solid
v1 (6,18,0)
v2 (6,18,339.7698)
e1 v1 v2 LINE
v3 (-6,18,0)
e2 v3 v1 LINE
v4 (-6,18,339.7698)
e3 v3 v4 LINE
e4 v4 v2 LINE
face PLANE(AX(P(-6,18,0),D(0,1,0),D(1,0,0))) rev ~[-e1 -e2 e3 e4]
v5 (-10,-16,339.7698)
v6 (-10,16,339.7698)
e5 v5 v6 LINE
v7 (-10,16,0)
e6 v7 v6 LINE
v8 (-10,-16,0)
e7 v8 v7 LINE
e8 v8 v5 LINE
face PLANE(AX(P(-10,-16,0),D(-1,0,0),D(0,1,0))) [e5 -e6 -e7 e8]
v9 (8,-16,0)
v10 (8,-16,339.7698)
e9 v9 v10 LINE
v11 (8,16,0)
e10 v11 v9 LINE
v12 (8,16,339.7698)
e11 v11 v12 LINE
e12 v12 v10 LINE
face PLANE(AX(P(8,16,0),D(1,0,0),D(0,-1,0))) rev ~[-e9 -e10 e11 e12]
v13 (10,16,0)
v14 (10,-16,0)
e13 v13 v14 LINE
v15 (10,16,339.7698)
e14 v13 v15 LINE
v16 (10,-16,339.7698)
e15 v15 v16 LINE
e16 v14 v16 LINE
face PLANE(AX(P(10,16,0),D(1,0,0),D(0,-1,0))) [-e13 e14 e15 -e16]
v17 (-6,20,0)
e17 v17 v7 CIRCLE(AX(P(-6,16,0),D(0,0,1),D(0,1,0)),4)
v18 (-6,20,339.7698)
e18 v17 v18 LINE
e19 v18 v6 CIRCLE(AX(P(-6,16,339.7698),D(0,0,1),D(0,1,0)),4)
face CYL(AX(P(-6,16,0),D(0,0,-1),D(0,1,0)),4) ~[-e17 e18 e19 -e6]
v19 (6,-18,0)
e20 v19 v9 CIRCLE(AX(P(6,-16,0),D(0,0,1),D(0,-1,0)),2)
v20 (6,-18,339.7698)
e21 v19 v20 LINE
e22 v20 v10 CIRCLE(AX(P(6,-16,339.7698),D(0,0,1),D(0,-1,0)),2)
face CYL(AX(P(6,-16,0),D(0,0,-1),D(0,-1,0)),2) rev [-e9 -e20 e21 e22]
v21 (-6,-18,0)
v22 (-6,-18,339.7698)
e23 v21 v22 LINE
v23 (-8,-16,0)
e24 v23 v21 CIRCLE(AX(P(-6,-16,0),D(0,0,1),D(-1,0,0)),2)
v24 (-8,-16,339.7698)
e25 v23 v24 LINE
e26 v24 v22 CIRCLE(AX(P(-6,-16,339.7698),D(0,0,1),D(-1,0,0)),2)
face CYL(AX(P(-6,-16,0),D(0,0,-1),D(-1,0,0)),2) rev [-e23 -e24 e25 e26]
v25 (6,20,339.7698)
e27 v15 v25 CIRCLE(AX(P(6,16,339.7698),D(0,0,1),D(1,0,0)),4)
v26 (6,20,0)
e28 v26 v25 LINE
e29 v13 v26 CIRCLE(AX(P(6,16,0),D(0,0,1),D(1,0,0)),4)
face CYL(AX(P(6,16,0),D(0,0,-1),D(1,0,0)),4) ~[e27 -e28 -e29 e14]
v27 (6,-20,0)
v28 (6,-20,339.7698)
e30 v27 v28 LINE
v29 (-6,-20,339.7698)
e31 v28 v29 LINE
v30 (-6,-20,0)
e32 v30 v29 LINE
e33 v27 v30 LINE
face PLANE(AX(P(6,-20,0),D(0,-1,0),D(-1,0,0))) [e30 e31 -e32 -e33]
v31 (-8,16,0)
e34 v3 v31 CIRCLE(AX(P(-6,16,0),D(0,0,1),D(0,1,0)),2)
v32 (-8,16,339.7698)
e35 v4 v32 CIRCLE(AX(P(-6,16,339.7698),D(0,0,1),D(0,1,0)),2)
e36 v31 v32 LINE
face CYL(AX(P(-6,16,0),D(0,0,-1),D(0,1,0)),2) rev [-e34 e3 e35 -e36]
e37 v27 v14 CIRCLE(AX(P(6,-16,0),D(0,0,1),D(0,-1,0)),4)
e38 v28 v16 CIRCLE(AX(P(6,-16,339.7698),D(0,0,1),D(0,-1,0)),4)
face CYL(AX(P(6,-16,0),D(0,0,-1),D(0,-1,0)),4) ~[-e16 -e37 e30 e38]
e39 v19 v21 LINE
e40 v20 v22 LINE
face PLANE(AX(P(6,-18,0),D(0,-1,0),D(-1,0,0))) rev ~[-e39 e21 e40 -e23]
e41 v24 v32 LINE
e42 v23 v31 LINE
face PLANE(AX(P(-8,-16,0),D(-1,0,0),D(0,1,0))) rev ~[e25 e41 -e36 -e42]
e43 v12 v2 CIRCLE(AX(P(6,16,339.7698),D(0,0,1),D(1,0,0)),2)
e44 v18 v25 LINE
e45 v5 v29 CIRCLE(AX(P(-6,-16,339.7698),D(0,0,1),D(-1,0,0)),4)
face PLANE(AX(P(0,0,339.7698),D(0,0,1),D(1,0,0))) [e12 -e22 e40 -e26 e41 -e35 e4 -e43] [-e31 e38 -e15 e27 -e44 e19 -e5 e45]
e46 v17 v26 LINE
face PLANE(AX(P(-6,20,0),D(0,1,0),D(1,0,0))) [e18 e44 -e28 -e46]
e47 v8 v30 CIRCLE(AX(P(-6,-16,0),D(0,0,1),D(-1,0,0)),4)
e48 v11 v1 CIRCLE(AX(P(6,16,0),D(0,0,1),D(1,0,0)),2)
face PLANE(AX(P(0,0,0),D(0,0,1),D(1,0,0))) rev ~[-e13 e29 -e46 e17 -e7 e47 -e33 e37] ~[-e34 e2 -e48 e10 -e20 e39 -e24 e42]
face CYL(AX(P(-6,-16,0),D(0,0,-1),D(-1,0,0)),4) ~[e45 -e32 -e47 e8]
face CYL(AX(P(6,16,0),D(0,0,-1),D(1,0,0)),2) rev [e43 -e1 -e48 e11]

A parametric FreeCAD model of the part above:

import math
import FreeCAD as App
import Part
import Sketcher

V = App.Vector

doc = App.newDocument("Part")
body = doc.addObject("PartDesign::Body", "Body")

# Sketch on XY plane
sketch1 = doc.addObject("Sketcher::SketchObject", "Sketch")
body.addObject(sketch1)
sketch1.AttachmentSupport = (doc.XY_Plane, [""])
sketch1.MapMode = "FlatFace"
sketch1.addGeometry(Part.LineSegment(V(-10, 16, 0), V(-10, -16, 0)), False)
sketch1.addGeometry(Part.ArcOfCircle(Part.Circle(V(-6, -16, 0), V(0, 0, 1), 4), math.radians(180), math.radians(270)), False)
sketch1.addGeometry(Part.LineSegment(V(-6, -20, 0), V(6, -20, 0)), False)
sketch1.addGeometry(Part.ArcOfCircle(Part.Circle(V(6, -16, 0), V(0, 0, 1), 4), math.radians(-90), math.radians(0)), False)
sketch1.addGeometry(Part.LineSegment(V(10, -16, 0), V(10, 16, 0)), False)
sketch1.addGeometry(Part.ArcOfCircle(Part.Circle(V(6, 16, 0), V(0, 0, 1), 4), math.radians(0), math.radians(90)), False)
sketch1.addGeometry(Part.LineSegment(V(6, 20, 0), V(-6, 20, 0)), False)
sketch1.addGeometry(Part.ArcOfCircle(Part.Circle(V(-6, 16, 0), V(0, 0, 1), 4), math.radians(90), math.radians(180)), False)
sketch1.addGeometry(Part.ArcOfCircle(Part.Circle(V(-6, 16, 0), V(0, 0, 1), 2), math.radians(90), math.radians(180)), False)
sketch1.addGeometry(Part.LineSegment(V(-6, 18, 0), V(6, 18, 0)), False)
sketch1.addGeometry(Part.ArcOfCircle(Part.Circle(V(6, 16, 0), V(0, 0, 1), 2), math.radians(0), math.radians(90)), False)
sketch1.addGeometry(Part.LineSegment(V(8, 16, 0), V(8, -16, 0)), False)
sketch1.addGeometry(Part.ArcOfCircle(Part.Circle(V(6, -16, 0), V(0, 0, 1), 2), math.radians(-90), math.radians(0)), False)
sketch1.addGeometry(Part.LineSegment(V(6, -18, 0), V(-6, -18, 0)), False)
sketch1.addGeometry(Part.ArcOfCircle(Part.Circle(V(-6, -16, 0), V(0, 0, 1), 2), math.radians(180), math.radians(270)), False)
sketch1.addGeometry(Part.LineSegment(V(-8, -16, 0), V(-8, 16, 0)), False)
sketch1.addConstraint(Sketcher.Constraint("Tangent", 0, 2, 1, 1))
sketch1.addConstraint(Sketcher.Constraint("Tangent", 1, 2, 2, 1))
sketch1.addConstraint(Sketcher.Constraint("Tangent", 2, 2, 3, 1))
sketch1.addConstraint(Sketcher.Constraint("Tangent", 3, 2, 4, 1))
sketch1.addConstraint(Sketcher.Constraint("Tangent", 4, 2, 5, 1))
sketch1.addConstraint(Sketcher.Constraint("Tangent", 5, 2, 6, 1))
sketch1.addConstraint(Sketcher.Constraint("Tangent", 6, 2, 7, 1))
sketch1.addConstraint(Sketcher.Constraint("Tangent", 7, 2, 0, 1))
sketch1.addConstraint(Sketcher.Constraint("Tangent", 8, 1, 9, 1))
sketch1.addConstraint(Sketcher.Constraint("Tangent", 9, 2, 10, 2))
sketch1.addConstraint(Sketcher.Constraint("Tangent", 10, 1, 11, 1))
sketch1.addConstraint(Sketcher.Constraint("Tangent", 11, 2, 12, 2))
sketch1.addConstraint(Sketcher.Constraint("Tangent", 12, 1, 13, 1))
sketch1.addConstraint(Sketcher.Constraint("Tangent", 13, 2, 14, 2))
sketch1.addConstraint(Sketcher.Constraint("Tangent", 14, 1, 15, 1))
sketch1.addConstraint(Sketcher.Constraint("Tangent", 15, 2, 8, 2))
sketch1.addConstraint(Sketcher.Constraint("Vertical", 0))
sketch1.addConstraint(Sketcher.Constraint("Horizontal", 2))
sketch1.addConstraint(Sketcher.Constraint("Vertical", 4))
sketch1.addConstraint(Sketcher.Constraint("Horizontal", 6))
sketch1.addConstraint(Sketcher.Constraint("Horizontal", 9))
sketch1.addConstraint(Sketcher.Constraint("Vertical", 11))
sketch1.addConstraint(Sketcher.Constraint("Horizontal", 13))
sketch1.addConstraint(Sketcher.Constraint("Vertical", 15))
sketch1.addConstraint(Sketcher.Constraint("Coincident", 8, 3, 7, 3))
sketch1.addConstraint(Sketcher.Constraint("Coincident", 10, 3, 5, 3))
sketch1.addConstraint(Sketcher.Constraint("Coincident", 12, 3, 3, 3))
sketch1.addConstraint(Sketcher.Constraint("Equal", 1, 3))
sketch1.addConstraint(Sketcher.Constraint("Equal", 3, 5))
sketch1.addConstraint(Sketcher.Constraint("Equal", 5, 7))
sketch1.addConstraint(Sketcher.Constraint("Equal", 12, 14))
sketch1.addConstraint(Sketcher.Constraint("Symmetric", 1, 3, 5, 3, -1, 1))
sketch1.addConstraint(Sketcher.Constraint("Radius", 1, 4.0))
sketch1.addConstraint(Sketcher.Constraint("Radius", 8, 2.0))
sketch1.addConstraint(Sketcher.Constraint("DistanceX", 0, 2, -1, 1, 10.0))
sketch1.addConstraint(Sketcher.Constraint("DistanceY", 1, 2, -1, 1, 20.0))
pad1 = doc.addObject("PartDesign::Pad", "Pad")
body.addObject(pad1)
pad1.Profile = sketch1
pad1.Length = 339.7698

doc.recompute()
